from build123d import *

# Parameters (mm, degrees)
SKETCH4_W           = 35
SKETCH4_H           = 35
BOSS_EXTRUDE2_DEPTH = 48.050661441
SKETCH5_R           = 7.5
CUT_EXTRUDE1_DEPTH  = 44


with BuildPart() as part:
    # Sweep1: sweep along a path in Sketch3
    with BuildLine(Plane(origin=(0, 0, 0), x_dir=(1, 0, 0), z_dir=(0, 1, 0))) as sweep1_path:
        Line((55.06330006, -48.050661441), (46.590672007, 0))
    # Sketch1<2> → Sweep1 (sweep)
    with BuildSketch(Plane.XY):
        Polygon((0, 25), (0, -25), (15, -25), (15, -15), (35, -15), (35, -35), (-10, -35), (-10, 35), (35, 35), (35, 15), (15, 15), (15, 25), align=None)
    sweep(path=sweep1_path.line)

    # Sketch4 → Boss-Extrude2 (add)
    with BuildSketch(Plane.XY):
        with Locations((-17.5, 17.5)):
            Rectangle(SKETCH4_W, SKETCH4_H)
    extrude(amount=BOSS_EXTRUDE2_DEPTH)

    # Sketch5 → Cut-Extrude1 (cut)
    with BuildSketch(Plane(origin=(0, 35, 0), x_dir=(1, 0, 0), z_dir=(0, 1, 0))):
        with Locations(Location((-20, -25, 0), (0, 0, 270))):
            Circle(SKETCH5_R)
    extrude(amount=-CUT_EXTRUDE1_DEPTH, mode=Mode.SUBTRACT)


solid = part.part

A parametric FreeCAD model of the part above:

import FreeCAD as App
import Part
import Sketcher

V = App.Vector
Q = App.Units.Quantity


def add_polygon(sketch, points):
    """Adds a closed chain of lines whose ends are joined by coincident constraints."""
    first, n = sketch.GeometryCount, len(points)
    for a, b in zip(points, points[1:] + points[:1]):
        sketch.addGeometry(Part.LineSegment(App.Vector(*a, 0), App.Vector(*b, 0)), False)
    for i in range(n):
        sketch.addConstraint(Sketcher.Constraint("Coincident", first + i, 2, first + (i + 1) % n, 1))

doc = App.newDocument("Part")
body = doc.addObject("PartDesign::Body", "Body")

# Sketch on XY plane
sketch1 = doc.addObject("Sketcher::SketchObject", "Sketch")
body.addObject(sketch1)
sketch1.AttachmentSupport = (doc.XY_Plane, [""])
sketch1.MapMode = "FlatFace"
add_polygon(sketch1, [(0, -25), (0, 25), (15, 25), (15, 15), (35, 15), (35, 35), (-10, 35), (-10, -35), (35, -35), (35, -15), (15, -15), (15, -25)])  # lines 0-11
sketch1.addConstraint(Sketcher.Constraint("Vertical", 0))
sketch1.addConstraint(Sketcher.Constraint("Horizontal", 1))
sketch1.addConstraint(Sketcher.Constraint("Vertical", 2))
sketch1.addConstraint(Sketcher.Constraint("Horizontal", 3))
sketch1.addConstraint(Sketcher.Constraint("Vertical", 4))
sketch1.addConstraint(Sketcher.Constraint("Horizontal", 5))
sketch1.addConstraint(Sketcher.Constraint("Vertical", 6))
sketch1.addConstraint(Sketcher.Constraint("Horizontal", 7))
sketch1.addConstraint(Sketcher.Constraint("Vertical", 8))
sketch1.addConstraint(Sketcher.Constraint("Horizontal", 9))
sketch1.addConstraint(Sketcher.Constraint("Vertical", 10))
sketch1.addConstraint(Sketcher.Constraint("Horizontal", 11))
sketch1.addConstraint(Sketcher.Constraint("Symmetric", 0, 2, 11, 2, -1, 1))
sketch1.addConstraint(Sketcher.Constraint("Symmetric", 4, 2, 7, 2, -1))
sketch1.addConstraint(Sketcher.Constraint("Symmetric", 2, 2, 9, 2, -1))
sketch1.addConstraint(Sketcher.Constraint("Equal", 9, 4))
sketch1.addConstraint(Sketcher.Constraint("DistanceX", 1, 1, 1, 2, Q("15 mm")))
sketch1.addConstraint(Sketcher.Constraint("DistanceX", 3, 1, 3, 2, Q("20 mm")))
sketch1.addConstraint(Sketcher.Constraint("DistanceX", 5, 2, 5, 1, Q("45 mm")))
sketch1.addConstraint(Sketcher.Constraint("DistanceY", 0, 1, 0, 2, Q("50 mm")))
sketch1.addConstraint(Sketcher.Constraint("DistanceY", 2, 2, 2, 1, Q("10 mm")))

# Sketch on an angled plane
sketch2 = doc.addObject("Sketcher::SketchObject", "Sketch001")
body.addObject(sketch2)
sketch2.Placement = App.Placement(V(45.185791, 0, -7.967474), App.Rotation(V(-0.173648178, 0, -0.984807753), V(0, 1, 0), V(0.984807753, 0, -0.173648178), "ZXY"))
sketch2.addGeometry(Part.LineSegment(V(-57, 0, 0), V(-8, 0, 0)), False)
sketch2.addConstraint(Sketcher.Constraint("Horizontal", 0))
sketch2.addConstraint(Sketcher.Constraint("PointOnObject", 0, 1, -1))
sketch2.addConstraint(Sketcher.Constraint("DistanceX", 0, 1, 0, 2, Q("48.79192 mm")))
sketch2.addConstraint(Sketcher.Constraint("DistanceX", 0, 1, -1, 1, Q("56.882306 mm")))
doc.recompute()

additivepipe = doc.addObject("PartDesign::AdditivePipe", "AdditivePipe")
body.addObject(additivepipe)
additivepipe.Profile = sketch1
additivepipe.Spine = (sketch2, ["Edge1"])

# Sketch on XY plane
sketch3 = doc.addObject("Sketcher::SketchObject", "Sketch002")
body.addObject(sketch3)
sketch3.AttachmentSupport = (doc.XY_Plane, [""])
sketch3.MapMode = "FlatFace"
add_polygon(sketch3, [(-35, 35), (-35, 0), (0, 0), (0, 35)])  # lines 0-3
sketch3.addConstraint(Sketcher.Constraint("Vertical", 0))
sketch3.addConstraint(Sketcher.Constraint("Horizontal", 1))
sketch3.addConstraint(Sketcher.Constraint("Vertical", 2))
sketch3.addConstraint(Sketcher.Constraint("Horizontal", 3))
sketch3.addConstraint(Sketcher.Constraint("Coincident", 1, 2, -1, 1))
sketch3.addConstraint(Sketcher.Constraint("Equal", 3, 0))
sketch3.addConstraint(Sketcher.Constraint("DistanceX", 1, 1, 1, 2, Q("35 mm")))
pad1 = doc.addObject("PartDesign::Pad", "Pad")
body.addObject(pad1)
pad1.Profile = sketch3
pad1.Length = 48.050661

# Sketch on XZ plane
sketch4 = doc.addObject("Sketcher::SketchObject", "Sketch003")
body.addObject(sketch4)
sketch4.AttachmentSupport = (doc.XZ_Plane, [""])
sketch4.MapMode = "FlatFace"
sketch4.AttachmentOffset = App.Placement(V(0, 0, -35), App.Rotation())
sketch4.addGeometry(Part.Circle(V(-20, 25, 0), V(0, 0, 1), 8), False)
sketch4.addConstraint(Sketcher.Constraint("Diameter", 0, Q("15 mm")))
sketch4.addConstraint(Sketcher.Constraint("DistanceX", 0, 3, -1, 1, Q("20 mm")))
sketch4.addConstraint(Sketcher.Constraint("DistanceY", -1, 1, 0, 3, Q("25 mm")))
pocket1 = doc.addObject("PartDesign::Pocket", "Pocket")
body.addObject(pocket1)
pocket1.Profile = sketch4
pocket1.Length = 44
pocket1.Reversed = True

doc.recompute()
